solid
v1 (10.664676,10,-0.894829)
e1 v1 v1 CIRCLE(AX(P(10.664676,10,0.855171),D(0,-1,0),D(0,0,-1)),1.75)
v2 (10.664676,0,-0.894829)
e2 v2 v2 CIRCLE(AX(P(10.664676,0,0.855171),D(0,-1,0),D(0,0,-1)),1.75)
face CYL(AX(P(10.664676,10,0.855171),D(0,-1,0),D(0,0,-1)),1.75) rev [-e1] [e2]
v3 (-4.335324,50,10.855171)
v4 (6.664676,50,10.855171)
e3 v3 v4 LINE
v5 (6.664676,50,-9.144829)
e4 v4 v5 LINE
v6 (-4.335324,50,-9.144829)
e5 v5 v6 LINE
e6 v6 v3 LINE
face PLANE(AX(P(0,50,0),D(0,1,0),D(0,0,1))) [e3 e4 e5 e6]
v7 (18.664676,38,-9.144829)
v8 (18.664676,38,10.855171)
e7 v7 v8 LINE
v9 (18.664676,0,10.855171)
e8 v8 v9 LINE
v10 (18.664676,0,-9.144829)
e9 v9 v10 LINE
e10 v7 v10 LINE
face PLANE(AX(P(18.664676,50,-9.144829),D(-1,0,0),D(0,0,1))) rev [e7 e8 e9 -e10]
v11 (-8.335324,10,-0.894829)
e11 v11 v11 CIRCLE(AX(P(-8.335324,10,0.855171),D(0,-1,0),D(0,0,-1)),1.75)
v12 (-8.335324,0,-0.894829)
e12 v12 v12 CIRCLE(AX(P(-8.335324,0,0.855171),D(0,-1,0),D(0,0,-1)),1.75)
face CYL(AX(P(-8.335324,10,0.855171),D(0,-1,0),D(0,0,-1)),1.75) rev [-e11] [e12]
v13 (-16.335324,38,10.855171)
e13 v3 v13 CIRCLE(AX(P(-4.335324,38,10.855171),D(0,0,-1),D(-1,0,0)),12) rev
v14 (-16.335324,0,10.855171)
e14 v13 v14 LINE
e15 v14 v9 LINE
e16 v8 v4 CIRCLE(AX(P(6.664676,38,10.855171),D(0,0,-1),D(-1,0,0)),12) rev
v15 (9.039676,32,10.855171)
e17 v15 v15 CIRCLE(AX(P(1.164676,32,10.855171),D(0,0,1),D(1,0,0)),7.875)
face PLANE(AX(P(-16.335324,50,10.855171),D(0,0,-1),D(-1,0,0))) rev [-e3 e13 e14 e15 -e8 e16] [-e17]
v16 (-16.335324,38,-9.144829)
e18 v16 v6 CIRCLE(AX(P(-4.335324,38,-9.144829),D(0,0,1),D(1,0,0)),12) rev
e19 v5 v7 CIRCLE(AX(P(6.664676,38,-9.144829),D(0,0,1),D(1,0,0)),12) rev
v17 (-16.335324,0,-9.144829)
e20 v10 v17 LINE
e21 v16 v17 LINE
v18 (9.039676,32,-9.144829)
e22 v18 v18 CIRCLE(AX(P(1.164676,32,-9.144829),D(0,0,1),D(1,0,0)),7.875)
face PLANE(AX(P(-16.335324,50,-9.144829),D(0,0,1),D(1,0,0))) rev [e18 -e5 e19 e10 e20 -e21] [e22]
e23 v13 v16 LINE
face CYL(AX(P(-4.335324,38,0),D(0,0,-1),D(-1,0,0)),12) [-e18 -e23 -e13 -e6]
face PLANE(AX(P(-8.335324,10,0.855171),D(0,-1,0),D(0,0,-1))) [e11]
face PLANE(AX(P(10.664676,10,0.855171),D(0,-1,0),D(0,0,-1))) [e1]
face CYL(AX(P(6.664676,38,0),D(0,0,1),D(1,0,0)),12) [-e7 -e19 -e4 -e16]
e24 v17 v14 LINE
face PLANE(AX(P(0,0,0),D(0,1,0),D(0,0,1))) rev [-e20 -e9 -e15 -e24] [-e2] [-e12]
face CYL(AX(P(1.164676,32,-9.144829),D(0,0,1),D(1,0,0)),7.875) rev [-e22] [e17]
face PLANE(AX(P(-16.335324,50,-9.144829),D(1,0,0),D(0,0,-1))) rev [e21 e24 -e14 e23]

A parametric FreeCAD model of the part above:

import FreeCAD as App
import Part
import Sketcher

V = App.Vector


def edges_at(feature, points):
    """Names of the edges that pass closest to the given points."""
    edges = feature.Shape.Edges
    near = lambda p: min(range(len(edges)), key=lambda i: edges[i].distToShape(Part.Vertex(*p))[0])
    return sorted({f"Edge{near(p) + 1}" for p in points})

doc = App.newDocument("Part")
params = doc.addObject("Spreadsheet::Sheet", "Params")
for row, (alias, value) in enumerate([
    ("sketch1_width", "35 mm"),
    ("sketch1_height", "20 mm"),
    ("pad1_length", "50 mm"),
    ("sketch2_diameter", "15.75 mm"),
    ("sketch3_diameter", "3.5 mm"),
    ("pocket2_length", "10 mm"),
    ("fillet_radius", "12 mm"),
], start=1):
    params.set(f"A{row}", alias)
    params.set(f"B{row}", "=" + value)
    params.setAlias(f"B{row}", alias)

body = doc.addObject("PartDesign::Body", "Body")

sketch1 = body.newObject("Sketcher::SketchObject", "Sketch")
sketch1.AttachmentSupport = (doc.getObject("XZ_Plane"), [""])
sketch1.MapMode = "FlatFace"
sketch1.addGeometry(Part.LineSegment(V(-16.335324, -9.144829, 0), V(-16.335324, 10.855171, 0)), False)
sketch1.addGeometry(Part.LineSegment(V(-16.335324, 10.855171, 0), V(18.664676, 10.855171, 0)), False)
sketch1.addGeometry(Part.LineSegment(V(18.664676, 10.855171, 0), V(18.664676, -9.144829, 0)), False)
sketch1.addGeometry(Part.LineSegment(V(18.664676, -9.144829, 0), V(-16.335324, -9.144829, 0)), False)
sketch1.addConstraint(Sketcher.Constraint("Coincident", 0, 2, 1, 1))
sketch1.addConstraint(Sketcher.Constraint("Coincident", 1, 2, 2, 1))
sketch1.addConstraint(Sketcher.Constraint("Coincident", 2, 2, 3, 1))
sketch1.addConstraint(Sketcher.Constraint("Coincident", 3, 2, 0, 1))
sketch1.addConstraint(Sketcher.Constraint("Vertical", 0))
sketch1.addConstraint(Sketcher.Constraint("Horizontal", 1))
sketch1.addConstraint(Sketcher.Constraint("Vertical", 2))
sketch1.addConstraint(Sketcher.Constraint("Horizontal", 3))
sketch1.addConstraint(Sketcher.Constraint("DistanceX", 1, 1, 1, 2, 35.0))
sketch1.addConstraint(Sketcher.Constraint("DistanceY", 0, 1, 0, 2, 20.0))
sketch1.addConstraint(Sketcher.Constraint("DistanceY", -1, 1, 0, 2, 10.855171))
sketch1.addConstraint(Sketcher.Constraint("DistanceX", 0, 2, -1, 1, 16.335324))
sketch1.setExpression("Constraints[8]", "Params.sketch1_width")
sketch1.setExpression("Constraints[9]", "Params.sketch1_height")
pad1 = body.newObject("PartDesign::Pad", "Pad")
pad1.Profile = sketch1
pad1.setExpression("Length", "Params.pad1_length")
pad1.Reversed = True

sketch2 = body.newObject("Sketcher::SketchObject", "Sketch001")
sketch2.AttachmentSupport = (doc.getObject("XY_Plane"), [""])
sketch2.MapMode = "FlatFace"
sketch2.AttachmentOffset = App.Placement(V(0, 0, 10.855171), App.Rotation())
sketch2.addGeometry(Part.Circle(V(1.164676, 32, 0), V(0, 0, 1), 7.875), False)
sketch2.addConstraint(Sketcher.Constraint("Diameter", 0, 15.75))
sketch2.addConstraint(Sketcher.Constraint("DistanceY", -1, 1, 0, 3, 32.0))
sketch2.addConstraint(Sketcher.Constraint("DistanceX", -1, 1, 0, 3, 1.164676))
sketch2.setExpression("Constraints[0]", "Params.sketch2_diameter")
pocket1 = body.newObject("PartDesign::Pocket", "Pocket")
pocket1.Profile = sketch2
pocket1.Type = "ThroughAll"

sketch3 = body.newObject("Sketcher::SketchObject", "Sketch002")
sketch3.AttachmentSupport = (doc.getObject("XZ_Plane"), [""])
sketch3.MapMode = "FlatFace"
sketch3.addGeometry(Part.Circle(V(-8.335324, 0.855171, 0), V(0, 0, 1), 1.75), False)
sketch3.addGeometry(Part.Circle(V(10.664676, 0.855171, 0), V(0, 0, 1), 1.75), False)
sketch3.addConstraint(Sketcher.Constraint("Equal", 0, 1))
sketch3.addConstraint(Sketcher.Constraint("Horizontal", 0, 3, 1, 3))
sketch3.addConstraint(Sketcher.Constraint("Diameter", 0, 3.5))
sketch3.addConstraint(Sketcher.Constraint("DistanceX", 0, 3, 1, 3, 19.0))
sketch3.addConstraint(Sketcher.Constraint("DistanceY", -1, 1, 0, 3, 0.855171))
sketch3.addConstraint(Sketcher.Constraint("DistanceX", 0, 3, -1, 1, 8.335324))
sketch3.setExpression("Constraints[2]", "Params.sketch3_diameter")
pocket2 = body.newObject("PartDesign::Pocket", "Pocket001")
pocket2.Profile = sketch3
pocket2.setExpression("Length", "Params.pocket2_length")
doc.recompute()

fillet = body.newObject("PartDesign::Fillet", "Fillet")
fillet.Base = (pocket2, edges_at(pocket2, [(18.665, 50, 0.855), (-16.335, 50, 0.855)]))
fillet.setExpression("Radius", "Params.fillet_radius")

doc.recompute()
